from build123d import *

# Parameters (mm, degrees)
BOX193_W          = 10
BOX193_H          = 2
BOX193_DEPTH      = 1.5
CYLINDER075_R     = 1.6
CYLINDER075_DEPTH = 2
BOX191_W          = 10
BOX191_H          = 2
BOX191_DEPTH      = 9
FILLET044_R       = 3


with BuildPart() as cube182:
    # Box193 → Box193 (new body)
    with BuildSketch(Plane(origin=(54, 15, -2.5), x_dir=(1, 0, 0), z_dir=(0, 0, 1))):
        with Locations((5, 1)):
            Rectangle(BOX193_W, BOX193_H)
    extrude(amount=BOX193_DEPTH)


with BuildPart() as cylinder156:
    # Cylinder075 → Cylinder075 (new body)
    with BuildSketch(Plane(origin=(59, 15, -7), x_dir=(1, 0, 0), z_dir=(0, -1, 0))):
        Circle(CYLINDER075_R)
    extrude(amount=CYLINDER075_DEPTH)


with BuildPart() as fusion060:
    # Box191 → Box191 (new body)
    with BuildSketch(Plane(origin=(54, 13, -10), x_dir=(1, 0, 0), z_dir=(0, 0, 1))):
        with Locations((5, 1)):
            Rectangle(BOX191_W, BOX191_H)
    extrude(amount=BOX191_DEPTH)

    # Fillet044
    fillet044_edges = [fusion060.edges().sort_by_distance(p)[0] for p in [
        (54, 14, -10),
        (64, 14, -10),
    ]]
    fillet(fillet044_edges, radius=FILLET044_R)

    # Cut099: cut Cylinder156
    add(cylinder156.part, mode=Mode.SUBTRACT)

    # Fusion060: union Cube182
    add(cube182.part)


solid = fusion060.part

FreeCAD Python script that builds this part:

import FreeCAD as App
import Part
import Sketcher
Q = App.Units.Quantity


def edges_at(feature, points):
    """Names of the edges that pass closest to the given points."""
    edges = feature.Shape.Edges
    near = lambda p: min(range(len(edges)), key=lambda i: edges[i].distToShape(Part.Vertex(*p))[0])
    return sorted({f"Edge{near(p) + 1}" for p in points})


def add_polygon(sketch, points):
    """Adds a closed chain of lines whose ends are joined by coincident constraints."""
    first, n = sketch.GeometryCount, len(points)
    for a, b in zip(points, points[1:] + points[:1]):
        sketch.addGeometry(Part.LineSegment(App.Vector(*a, 0), App.Vector(*b, 0)), False)
    for i in range(n):
        sketch.addConstraint(Sketcher.Constraint("Coincident", first + i, 2, first + (i + 1) % n, 1))

doc = App.newDocument("Part")
body = doc.addObject("PartDesign::Body", "Body")

# Sketch on XY plane
sketch1 = body.newObject("Sketcher::SketchObject", "Sketch")
sketch1.AttachmentSupport = (doc.getObject("XY_Plane"), [""])
sketch1.MapMode = "FlatFace"
sketch1.AttachmentOffset = App.Placement(App.Vector(0, 0, -2.5), App.Rotation())
add_polygon(sketch1, [(54, 17), (54, 15), (64, 15), (64, 17)])  # lines 0-3
sketch1.addConstraint([
    Sketcher.Constraint("Vertical", 0),
    Sketcher.Constraint("Horizontal", 1),
    Sketcher.Constraint("Vertical", 2),
    Sketcher.Constraint("Horizontal", 3),
    Sketcher.Constraint("DistanceX", 1, 1, 1, 2, Q("10 mm")),
    Sketcher.Constraint("DistanceY", 0, 2, 0, 1, Q("2 mm")),
    Sketcher.Constraint("DistanceX", -1, 1, 0, 2, Q("54 mm")),
    Sketcher.Constraint("DistanceY", -1, 1, 0, 2, Q("15 mm")),
])
pad1 = body.newObject("PartDesign::Pad", "Pad")
pad1.Profile = sketch1
pad1.Length = 1.5
body2 = doc.addObject("PartDesign::Body", "Body001")

# Sketch on XZ plane
sketch2 = body2.newObject("Sketcher::SketchObject", "Sketch001")
sketch2.AttachmentSupport = (doc.getObject("XZ_Plane001"), [""])
sketch2.MapMode = "FlatFace"
sketch2.AttachmentOffset = App.Placement(App.Vector(0, 0, -15), App.Rotation())
sketch2.addGeometry(Part.Circle(App.Vector(59, -7, 0), App.Vector(0, 0, 1), 1.6), False)
sketch2.addConstraint([
    Sketcher.Constraint("Diameter", 0, Q("3.2 mm")),
    Sketcher.Constraint("DistanceX", -1, 1, 0, 3, Q("59 mm")),
    Sketcher.Constraint("DistanceY", 0, 3, -1, 1, Q("7 mm")),
])
pad2 = body2.newObject("PartDesign::Pad", "Pad001")
pad2.Profile = sketch2
pad2.Length = 2
body3 = doc.addObject("PartDesign::Body", "Body002")

# Sketch on XY plane
sketch3 = body3.newObject("Sketcher::SketchObject", "Sketch002")
sketch3.AttachmentSupport = (doc.getObject("XY_Plane002"), [""])
sketch3.MapMode = "FlatFace"
sketch3.AttachmentOffset = App.Placement(App.Vector(0, 0, -10), App.Rotation())
add_polygon(sketch3, [(54, 15), (54, 13), (64, 13), (64, 15)])  # lines 0-3
sketch3.addConstraint([
    Sketcher.Constraint("Vertical", 0),
    Sketcher.Constraint("Horizontal", 1),
    Sketcher.Constraint("Vertical", 2),
    Sketcher.Constraint("Horizontal", 3),
    Sketcher.Constraint("DistanceX", 1, 1, 1, 2, Q("10 mm")),
    Sketcher.Constraint("DistanceY", 0, 2, 0, 1, Q("2 mm")),
    Sketcher.Constraint("DistanceX", -1, 1, 0, 2, Q("54 mm")),
    Sketcher.Constraint("DistanceY", -1, 1, 0, 2, Q("13 mm")),
])
pad3 = body3.newObject("PartDesign::Pad", "Pad002")
pad3.Profile = sketch3
pad3.Length = 9
doc.recompute()

fillet = body3.newObject("PartDesign::Fillet", "Fillet")
fillet.Base = (pad3, edges_at(pad3, [(54, 14, -10), (64, 14, -10)]))
fillet.Radius = 3
doc.recompute()

boolean = body3.newObject("PartDesign::Boolean", "Boolean")
boolean.Type = "Cut"
boolean.addObjects([body2])
doc.recompute()

boolean2 = body3.newObject("PartDesign::Boolean", "Boolean001")
boolean2.Type = "Fuse"
boolean2.addObjects([body])

doc.recompute()
